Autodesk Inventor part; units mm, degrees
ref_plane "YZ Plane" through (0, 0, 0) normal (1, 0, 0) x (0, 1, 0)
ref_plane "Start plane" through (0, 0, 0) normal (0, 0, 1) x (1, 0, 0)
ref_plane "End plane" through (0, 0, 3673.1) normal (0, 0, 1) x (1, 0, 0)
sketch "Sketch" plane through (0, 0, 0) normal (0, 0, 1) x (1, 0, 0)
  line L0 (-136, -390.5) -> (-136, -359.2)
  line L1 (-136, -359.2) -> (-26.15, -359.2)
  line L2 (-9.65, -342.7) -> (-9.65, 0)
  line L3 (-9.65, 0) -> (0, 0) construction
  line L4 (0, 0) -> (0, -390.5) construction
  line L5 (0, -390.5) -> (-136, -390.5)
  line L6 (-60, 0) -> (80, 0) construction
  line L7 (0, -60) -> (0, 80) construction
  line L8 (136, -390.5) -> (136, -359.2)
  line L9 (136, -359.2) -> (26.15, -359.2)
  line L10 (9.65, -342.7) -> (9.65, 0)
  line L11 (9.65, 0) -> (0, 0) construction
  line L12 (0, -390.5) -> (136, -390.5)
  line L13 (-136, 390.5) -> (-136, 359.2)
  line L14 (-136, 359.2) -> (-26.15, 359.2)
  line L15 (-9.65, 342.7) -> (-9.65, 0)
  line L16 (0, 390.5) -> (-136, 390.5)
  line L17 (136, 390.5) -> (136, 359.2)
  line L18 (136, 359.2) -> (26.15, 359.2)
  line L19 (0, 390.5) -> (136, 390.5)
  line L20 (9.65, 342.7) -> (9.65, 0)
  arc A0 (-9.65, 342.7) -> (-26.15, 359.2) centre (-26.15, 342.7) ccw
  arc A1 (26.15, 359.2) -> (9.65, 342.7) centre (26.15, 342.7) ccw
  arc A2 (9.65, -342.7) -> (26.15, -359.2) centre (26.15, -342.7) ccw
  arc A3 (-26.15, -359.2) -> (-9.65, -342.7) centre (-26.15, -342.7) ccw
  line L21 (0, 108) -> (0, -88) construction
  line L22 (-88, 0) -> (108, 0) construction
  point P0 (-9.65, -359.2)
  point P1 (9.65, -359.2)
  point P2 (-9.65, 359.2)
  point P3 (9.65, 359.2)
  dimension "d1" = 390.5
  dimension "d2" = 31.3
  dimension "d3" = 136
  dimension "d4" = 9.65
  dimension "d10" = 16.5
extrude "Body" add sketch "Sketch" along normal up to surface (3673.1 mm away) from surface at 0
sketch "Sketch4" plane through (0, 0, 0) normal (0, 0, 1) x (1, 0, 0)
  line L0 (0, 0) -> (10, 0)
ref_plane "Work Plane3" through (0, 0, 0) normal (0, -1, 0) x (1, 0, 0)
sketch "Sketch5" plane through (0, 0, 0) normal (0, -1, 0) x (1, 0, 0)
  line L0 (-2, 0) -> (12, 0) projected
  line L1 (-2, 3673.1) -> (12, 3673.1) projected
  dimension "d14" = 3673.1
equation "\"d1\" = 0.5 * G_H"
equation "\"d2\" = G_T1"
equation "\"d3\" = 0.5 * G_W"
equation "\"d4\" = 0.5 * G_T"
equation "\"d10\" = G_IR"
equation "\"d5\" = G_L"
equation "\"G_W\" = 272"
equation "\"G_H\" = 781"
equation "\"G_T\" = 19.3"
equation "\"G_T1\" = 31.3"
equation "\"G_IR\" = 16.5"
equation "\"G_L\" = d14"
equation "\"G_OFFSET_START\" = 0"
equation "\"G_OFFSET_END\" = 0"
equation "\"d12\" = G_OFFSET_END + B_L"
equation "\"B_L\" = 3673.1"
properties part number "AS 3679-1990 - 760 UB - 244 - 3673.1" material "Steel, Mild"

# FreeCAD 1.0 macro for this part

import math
import FreeCAD as App
import Part
import Sketcher

V = App.Vector

doc = App.newDocument("Part")
params = doc.addObject("Spreadsheet::Sheet", "Params")
for row, (alias, value) in enumerate([
    ("sketch1_radius", "16.5 mm"),
    ("sketch1_height", "31.3 mm"),
    ("pad1_length", "3673.1 mm"),
], start=1):
    params.set(f"A{row}", alias)
    params.set(f"B{row}", "=" + value)
    params.setAlias(f"B{row}", alias)

body = doc.addObject("PartDesign::Body", "Body")

sketch1 = doc.addObject("Sketcher::SketchObject", "Sketch")
body.addObject(sketch1)
sketch1.AttachmentSupport = (doc.XY_Plane, [""])
sketch1.MapMode = "FlatFace"
sketch1.addGeometry([
    Part.LineSegment(V(-136, -359, 0), V(-136, -390, 0)),
    Part.LineSegment(V(-136, -390, 0), V(136, -390, 0)),
    Part.LineSegment(V(136, -390, 0), V(136, -359, 0)),
    Part.LineSegment(V(136, -359, 0), V(26, -359, 0)),
    Part.ArcOfCircle(Part.Circle(V(26, -343, 0), V(0, 0, 1), 16), math.radians(180), math.radians(270)),
    Part.LineSegment(V(10, -343, 0), V(10, 343, 0)),
    Part.ArcOfCircle(Part.Circle(V(26, 343, 0), V(0, 0, 1), 16), math.radians(90), math.radians(180)),
    Part.LineSegment(V(26, 359, 0), V(136, 359, 0)),
    Part.LineSegment(V(136, 359, 0), V(136, 390, 0)),
    Part.LineSegment(V(136, 390, 0), V(-136, 390, 0)),
    Part.LineSegment(V(-136, 390, 0), V(-136, 359, 0)),
    Part.LineSegment(V(-136, 359, 0), V(-26, 359, 0)),
    Part.ArcOfCircle(Part.Circle(V(-26, 343, 0), V(0, 0, 1), 16), math.radians(0), math.radians(90)),
    Part.LineSegment(V(-10, 343, 0), V(-10, -343, 0)),
    Part.ArcOfCircle(Part.Circle(V(-26, -343, 0), V(0, 0, 1), 16), math.radians(-90), math.radians(0)),
    Part.LineSegment(V(-26, -359, 0), V(-136, -359, 0)),
], False)
sketch1.addConstraint([
    Sketcher.Constraint("Coincident", 0, 2, 1, 1),
    Sketcher.Constraint("Coincident", 1, 2, 2, 1),
    Sketcher.Constraint("Coincident", 2, 2, 3, 1),
    Sketcher.Constraint("Tangent", 3, 2, 4, 2),
    Sketcher.Constraint("Tangent", 4, 1, 5, 1),
    Sketcher.Constraint("Tangent", 5, 2, 6, 2),
    Sketcher.Constraint("Tangent", 6, 1, 7, 1),
    Sketcher.Constraint("Coincident", 7, 2, 8, 1),
    Sketcher.Constraint("Coincident", 8, 2, 9, 1),
    Sketcher.Constraint("Coincident", 9, 2, 10, 1),
    Sketcher.Constraint("Coincident", 10, 2, 11, 1),
    Sketcher.Constraint("Tangent", 11, 2, 12, 2),
    Sketcher.Constraint("Tangent", 12, 1, 13, 1),
    Sketcher.Constraint("Tangent", 13, 2, 14, 2),
    Sketcher.Constraint("Tangent", 14, 1, 15, 1),
    Sketcher.Constraint("Coincident", 15, 2, 0, 1),
    Sketcher.Constraint("Vertical", 0),
    Sketcher.Constraint("Horizontal", 1),
    Sketcher.Constraint("Vertical", 2),
    Sketcher.Constraint("Horizontal", 3),
    Sketcher.Constraint("Vertical", 5),
    Sketcher.Constraint("Horizontal", 7),
    Sketcher.Constraint("Vertical", 8),
    Sketcher.Constraint("Horizontal", 9),
    Sketcher.Constraint("Vertical", 10),
    Sketcher.Constraint("Horizontal", 11),
    Sketcher.Constraint("Vertical", 13),
    Sketcher.Constraint("Horizontal", 15),
    Sketcher.Constraint("Equal", 4, 6),
    Sketcher.Constraint("Equal", 6, 12),
    Sketcher.Constraint("Equal", 12, 14),
    Sketcher.Constraint("Symmetric", 4, 3, 12, 3, -1, 1),
    Sketcher.Constraint("Symmetric", 0, 2, 8, 2, -1, 1),
    Sketcher.Constraint("Symmetric", 7, 2, 10, 2, -2),
    Sketcher.Constraint("Symmetric", 2, 2, 15, 2, -2),
    Sketcher.Constraint("Radius", 4, 16.5),
    Sketcher.Constraint("DistanceY", 0, 2, 0, 1, 31.3),
    Sketcher.Constraint("DistanceX", 0, 2, -1, 1, 136.0),
    Sketcher.Constraint("DistanceY", 0, 2, -1, 1, 390.5),
    Sketcher.Constraint("DistanceX", -1, 1, 4, 1, 9.65),
])
sketch1.setExpression("Constraints[35]", "Params.sketch1_radius")
sketch1.setExpression("Constraints[36]", "Params.sketch1_height")
pad1 = doc.addObject("PartDesign::Pad", "Pad")
body.addObject(pad1)
pad1.Profile = sketch1
pad1.setExpression("Length", "Params.pad1_length")

doc.recompute()
